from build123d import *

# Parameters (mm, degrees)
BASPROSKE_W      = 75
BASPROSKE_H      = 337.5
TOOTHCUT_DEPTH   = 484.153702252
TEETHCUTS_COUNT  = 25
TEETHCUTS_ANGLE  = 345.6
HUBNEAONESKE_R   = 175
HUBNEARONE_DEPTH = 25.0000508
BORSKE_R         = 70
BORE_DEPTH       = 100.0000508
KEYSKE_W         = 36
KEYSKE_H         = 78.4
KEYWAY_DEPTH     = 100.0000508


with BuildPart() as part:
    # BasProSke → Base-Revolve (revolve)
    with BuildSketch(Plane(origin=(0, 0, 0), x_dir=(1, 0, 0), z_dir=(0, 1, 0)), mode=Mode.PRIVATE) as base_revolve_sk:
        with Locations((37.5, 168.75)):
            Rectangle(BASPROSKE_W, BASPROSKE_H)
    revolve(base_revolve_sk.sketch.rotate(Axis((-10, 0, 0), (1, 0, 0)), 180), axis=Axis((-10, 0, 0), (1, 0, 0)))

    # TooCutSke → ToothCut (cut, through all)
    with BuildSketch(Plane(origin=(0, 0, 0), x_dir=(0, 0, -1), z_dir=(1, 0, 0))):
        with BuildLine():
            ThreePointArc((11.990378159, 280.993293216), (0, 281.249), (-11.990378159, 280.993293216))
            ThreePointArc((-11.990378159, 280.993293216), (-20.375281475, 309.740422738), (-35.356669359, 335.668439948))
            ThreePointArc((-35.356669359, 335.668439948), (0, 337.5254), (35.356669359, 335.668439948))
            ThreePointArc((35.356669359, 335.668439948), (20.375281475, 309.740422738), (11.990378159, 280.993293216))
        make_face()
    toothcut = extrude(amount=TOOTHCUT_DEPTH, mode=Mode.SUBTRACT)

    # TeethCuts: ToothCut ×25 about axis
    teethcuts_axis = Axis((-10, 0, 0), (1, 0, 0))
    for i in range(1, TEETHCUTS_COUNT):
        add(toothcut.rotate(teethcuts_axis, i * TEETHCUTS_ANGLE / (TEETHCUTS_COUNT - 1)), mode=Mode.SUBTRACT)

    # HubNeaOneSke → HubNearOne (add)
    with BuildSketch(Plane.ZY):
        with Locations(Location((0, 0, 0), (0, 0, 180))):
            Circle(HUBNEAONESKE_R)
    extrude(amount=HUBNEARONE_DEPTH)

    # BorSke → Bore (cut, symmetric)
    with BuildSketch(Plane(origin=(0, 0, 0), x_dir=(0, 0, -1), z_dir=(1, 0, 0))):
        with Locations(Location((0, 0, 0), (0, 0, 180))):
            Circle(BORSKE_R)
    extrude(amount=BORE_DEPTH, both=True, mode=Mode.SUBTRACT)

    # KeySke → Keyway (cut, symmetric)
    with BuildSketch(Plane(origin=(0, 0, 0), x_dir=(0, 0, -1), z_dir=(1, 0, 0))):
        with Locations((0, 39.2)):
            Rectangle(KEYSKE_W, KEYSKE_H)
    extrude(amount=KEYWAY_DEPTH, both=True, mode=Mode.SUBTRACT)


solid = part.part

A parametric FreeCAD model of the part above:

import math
import FreeCAD as App
import Part
import Sketcher
from FreeCAD import Vector
Q = App.Units.Quantity

doc = App.newDocument("Part")
params = doc.addObject("Spreadsheet::Sheet", "Params")
for row, (alias, value) in enumerate([
    ("sketch1_width", "75 mm"),
    ("sketch1_height", "337.5 mm"),
    ("revolution_angle", "360 deg"),
    ("sketch2_radius", "125 mm"),
    ("sketch3_diameter", "350 mm"),
    ("pad1_length", "25.000051 mm"),
    ("sketch4_diameter", "140 mm"),
    ("pocket2_length", "200.000102 mm"),
    ("sketch5_height", "36 mm"),
    ("sketch5_width", "78.4 mm"),
    ("pocket3_length", "200.000102 mm"),
], start=1):
    params.set(f"A{row}", alias)
    params.set(f"B{row}", "=" + value)
    params.setAlias(f"B{row}", alias)

body = doc.addObject("PartDesign::Body", "Body")

# Sketch on XZ plane
sketch1 = doc.addObject("Sketcher::SketchObject", "Sketch")
body.addObject(sketch1)
sketch1.AttachmentSupport = (doc.XZ_Plane, [""])
sketch1.MapMode = "FlatFace"
sketch1.addGeometry([
    Part.LineSegment(Vector(0, -338, 0), Vector(0, 0, 0)),
    Part.LineSegment(Vector(0, 0, 0), Vector(75, 0, 0)),
    Part.LineSegment(Vector(75, 0, 0), Vector(75, -338, 0)),
    Part.LineSegment(Vector(75, -338, 0), Vector(0, -338, 0)),
], False)
sketch1.addConstraint([
    Sketcher.Constraint("Coincident", 0, 2, 1, 1),
    Sketcher.Constraint("Coincident", 1, 2, 2, 1),
    Sketcher.Constraint("Coincident", 2, 2, 3, 1),
    Sketcher.Constraint("Coincident", 3, 2, 0, 1),
    Sketcher.Constraint("Vertical", 0),
    Sketcher.Constraint("Horizontal", 1),
    Sketcher.Constraint("Vertical", 2),
    Sketcher.Constraint("Horizontal", 3),
    Sketcher.Constraint("Coincident", 0, 2, -1, 1),
    Sketcher.Constraint("DistanceX", 1, 1, 1, 2, Q("75 mm")),
    Sketcher.Constraint("DistanceY", 0, 1, 0, 2, Q("337.5 mm")),
])
sketch1.setExpression("Constraints[9]", "Params.sketch1_width")
sketch1.setExpression("Constraints[10]", "Params.sketch1_height")
revolution = doc.addObject("PartDesign::Revolution", "Revolution")
body.addObject(revolution)
revolution.Profile = sketch1
revolution.ReferenceAxis = (sketch1, ["H_Axis"])
revolution.setExpression("Angle", "Params.revolution_angle")

# Sketch on YZ plane
sketch2 = doc.addObject("Sketcher::SketchObject", "Sketch001")
body.addObject(sketch2)
sketch2.AttachmentSupport = (doc.YZ_Plane, [""])
sketch2.MapMode = "FlatFace"
sketch2.addGeometry([
    Part.ArcOfCircle(Part.Circle(Vector(0, 0, 0), Vector(0, 0, 1), 281), math.radians(-2.44), math.radians(2.44)),
    Part.ArcOfCircle(Part.Circle(Vector(261, -135, 0), Vector(0, 0, 1), 125), math.radians(53), math.radians(81)),
    Part.ArcOfCircle(Part.Circle(Vector(0, 0, 0), Vector(0, 0, 1), 338), math.radians(-6.01), math.radians(6.01)),
    Part.ArcOfCircle(Part.Circle(Vector(261, 135, 0), Vector(0, 0, 1), 125), math.radians(-81), math.radians(-53)),
], False)
sketch2.addConstraint([
    Sketcher.Constraint("Coincident", 0, 1, 1, 2),
    Sketcher.Constraint("Coincident", 1, 1, 2, 1),
    Sketcher.Constraint("Coincident", 2, 2, 3, 2),
    Sketcher.Constraint("Coincident", 3, 1, 0, 2),
    Sketcher.Constraint("Coincident", 0, 3, -1, 1),
    Sketcher.Constraint("Coincident", 2, 3, -1, 1),
    Sketcher.Constraint("Equal", 1, 3),
    Sketcher.Constraint("Symmetric", 1, 3, 3, 3, -1),
    Sketcher.Constraint("Radius", 1, Q("125 mm")),
    Sketcher.Constraint("Radius", 0, Q("281.249 mm")),
    Sketcher.Constraint("Radius", 2, Q("337.5254 mm")),
    Sketcher.Constraint("DistanceY", 0, 1, 3, 3, Q("147.308901 mm")),
    Sketcher.Constraint("DistanceY", 1, 1, -1, 1, Q("35.356669 mm")),
])
sketch2.setExpression("Constraints[8]", "Params.sketch2_radius")
pocket1 = doc.addObject("PartDesign::Pocket", "Pocket")
body.addObject(pocket1)
pocket1.Profile = sketch2
pocket1.Type = "ThroughAll"
pocket1.Reversed = True
doc.recompute()

polarpattern = doc.addObject("PartDesign::PolarPattern", "PolarPattern")
body.addObject(polarpattern)
polarpattern.Originals = [pocket1]
polarpattern.Axis = (doc.X_Axis, [""])
polarpattern.Angle = 360
polarpattern.Occurrences = 25
body.Tip = polarpattern

# Sketch on YZ plane
sketch3 = doc.addObject("Sketcher::SketchObject", "Sketch002")
body.addObject(sketch3)
sketch3.AttachmentSupport = (doc.YZ_Plane, [""])
sketch3.MapMode = "FlatFace"
sketch3.addGeometry(Part.Circle(Vector(0, 0, 0), Vector(0, 0, 1), 175), False)
sketch3.addConstraint([
    Sketcher.Constraint("Coincident", 0, 3, -1, 1),
    Sketcher.Constraint("Diameter", 0, Q("350 mm")),
])
sketch3.setExpression("Constraints[1]", "Params.sketch3_diameter")
pad1 = doc.addObject("PartDesign::Pad", "Pad")
body.addObject(pad1)
pad1.Profile = sketch3
pad1.setExpression("Length", "Params.pad1_length")
pad1.Reversed = True

# Sketch on YZ plane
sketch4 = doc.addObject("Sketcher::SketchObject", "Sketch003")
body.addObject(sketch4)
sketch4.AttachmentSupport = (doc.YZ_Plane, [""])
sketch4.MapMode = "FlatFace"
sketch4.addGeometry(Part.Circle(Vector(0, 0, 0), Vector(0, 0, 1), 70), False)
sketch4.addConstraint([
    Sketcher.Constraint("Coincident", 0, 3, -1, 1),
    Sketcher.Constraint("Diameter", 0, Q("140 mm")),
])
sketch4.setExpression("Constraints[1]", "Params.sketch4_diameter")
pocket2 = doc.addObject("PartDesign::Pocket", "Pocket001")
body.addObject(pocket2)
pocket2.Profile = sketch4
pocket2.setExpression("Length", "Params.pocket2_length")
pocket2.Midplane = True

# Sketch on YZ plane
sketch5 = doc.addObject("Sketcher::SketchObject", "Sketch004")
body.addObject(sketch5)
sketch5.AttachmentSupport = (doc.YZ_Plane, [""])
sketch5.MapMode = "FlatFace"
sketch5.addGeometry([
    Part.LineSegment(Vector(78, 18, 0), Vector(0, 18, 0)),
    Part.LineSegment(Vector(0, 18, 0), Vector(0, -18, 0)),
    Part.LineSegment(Vector(0, -18, 0), Vector(78, -18, 0)),
    Part.LineSegment(Vector(78, -18, 0), Vector(78, 18, 0)),
], False)
sketch5.addConstraint([
    Sketcher.Constraint("Coincident", 0, 2, 1, 1),
    Sketcher.Constraint("Coincident", 1, 2, 2, 1),
    Sketcher.Constraint("Coincident", 2, 2, 3, 1),
    Sketcher.Constraint("Coincident", 3, 2, 0, 1),
    Sketcher.Constraint("Horizontal", 0),
    Sketcher.Constraint("Vertical", 1),
    Sketcher.Constraint("Horizontal", 2),
    Sketcher.Constraint("Vertical", 3),
    Sketcher.Constraint("Symmetric", 0, 2, 1, 2, -1, 1),
    Sketcher.Constraint("DistanceY", 1, 2, 1, 1, Q("36 mm")),
    Sketcher.Constraint("DistanceX", 0, 2, 0, 1, Q("78.4 mm")),
])
sketch5.setExpression("Constraints[9]", "Params.sketch5_height")
sketch5.setExpression("Constraints[10]", "Params.sketch5_width")
pocket3 = doc.addObject("PartDesign::Pocket", "Pocket002")
body.addObject(pocket3)
pocket3.Profile = sketch5
pocket3.setExpression("Length", "Params.pocket3_length")
pocket3.Midplane = True

doc.recompute()
